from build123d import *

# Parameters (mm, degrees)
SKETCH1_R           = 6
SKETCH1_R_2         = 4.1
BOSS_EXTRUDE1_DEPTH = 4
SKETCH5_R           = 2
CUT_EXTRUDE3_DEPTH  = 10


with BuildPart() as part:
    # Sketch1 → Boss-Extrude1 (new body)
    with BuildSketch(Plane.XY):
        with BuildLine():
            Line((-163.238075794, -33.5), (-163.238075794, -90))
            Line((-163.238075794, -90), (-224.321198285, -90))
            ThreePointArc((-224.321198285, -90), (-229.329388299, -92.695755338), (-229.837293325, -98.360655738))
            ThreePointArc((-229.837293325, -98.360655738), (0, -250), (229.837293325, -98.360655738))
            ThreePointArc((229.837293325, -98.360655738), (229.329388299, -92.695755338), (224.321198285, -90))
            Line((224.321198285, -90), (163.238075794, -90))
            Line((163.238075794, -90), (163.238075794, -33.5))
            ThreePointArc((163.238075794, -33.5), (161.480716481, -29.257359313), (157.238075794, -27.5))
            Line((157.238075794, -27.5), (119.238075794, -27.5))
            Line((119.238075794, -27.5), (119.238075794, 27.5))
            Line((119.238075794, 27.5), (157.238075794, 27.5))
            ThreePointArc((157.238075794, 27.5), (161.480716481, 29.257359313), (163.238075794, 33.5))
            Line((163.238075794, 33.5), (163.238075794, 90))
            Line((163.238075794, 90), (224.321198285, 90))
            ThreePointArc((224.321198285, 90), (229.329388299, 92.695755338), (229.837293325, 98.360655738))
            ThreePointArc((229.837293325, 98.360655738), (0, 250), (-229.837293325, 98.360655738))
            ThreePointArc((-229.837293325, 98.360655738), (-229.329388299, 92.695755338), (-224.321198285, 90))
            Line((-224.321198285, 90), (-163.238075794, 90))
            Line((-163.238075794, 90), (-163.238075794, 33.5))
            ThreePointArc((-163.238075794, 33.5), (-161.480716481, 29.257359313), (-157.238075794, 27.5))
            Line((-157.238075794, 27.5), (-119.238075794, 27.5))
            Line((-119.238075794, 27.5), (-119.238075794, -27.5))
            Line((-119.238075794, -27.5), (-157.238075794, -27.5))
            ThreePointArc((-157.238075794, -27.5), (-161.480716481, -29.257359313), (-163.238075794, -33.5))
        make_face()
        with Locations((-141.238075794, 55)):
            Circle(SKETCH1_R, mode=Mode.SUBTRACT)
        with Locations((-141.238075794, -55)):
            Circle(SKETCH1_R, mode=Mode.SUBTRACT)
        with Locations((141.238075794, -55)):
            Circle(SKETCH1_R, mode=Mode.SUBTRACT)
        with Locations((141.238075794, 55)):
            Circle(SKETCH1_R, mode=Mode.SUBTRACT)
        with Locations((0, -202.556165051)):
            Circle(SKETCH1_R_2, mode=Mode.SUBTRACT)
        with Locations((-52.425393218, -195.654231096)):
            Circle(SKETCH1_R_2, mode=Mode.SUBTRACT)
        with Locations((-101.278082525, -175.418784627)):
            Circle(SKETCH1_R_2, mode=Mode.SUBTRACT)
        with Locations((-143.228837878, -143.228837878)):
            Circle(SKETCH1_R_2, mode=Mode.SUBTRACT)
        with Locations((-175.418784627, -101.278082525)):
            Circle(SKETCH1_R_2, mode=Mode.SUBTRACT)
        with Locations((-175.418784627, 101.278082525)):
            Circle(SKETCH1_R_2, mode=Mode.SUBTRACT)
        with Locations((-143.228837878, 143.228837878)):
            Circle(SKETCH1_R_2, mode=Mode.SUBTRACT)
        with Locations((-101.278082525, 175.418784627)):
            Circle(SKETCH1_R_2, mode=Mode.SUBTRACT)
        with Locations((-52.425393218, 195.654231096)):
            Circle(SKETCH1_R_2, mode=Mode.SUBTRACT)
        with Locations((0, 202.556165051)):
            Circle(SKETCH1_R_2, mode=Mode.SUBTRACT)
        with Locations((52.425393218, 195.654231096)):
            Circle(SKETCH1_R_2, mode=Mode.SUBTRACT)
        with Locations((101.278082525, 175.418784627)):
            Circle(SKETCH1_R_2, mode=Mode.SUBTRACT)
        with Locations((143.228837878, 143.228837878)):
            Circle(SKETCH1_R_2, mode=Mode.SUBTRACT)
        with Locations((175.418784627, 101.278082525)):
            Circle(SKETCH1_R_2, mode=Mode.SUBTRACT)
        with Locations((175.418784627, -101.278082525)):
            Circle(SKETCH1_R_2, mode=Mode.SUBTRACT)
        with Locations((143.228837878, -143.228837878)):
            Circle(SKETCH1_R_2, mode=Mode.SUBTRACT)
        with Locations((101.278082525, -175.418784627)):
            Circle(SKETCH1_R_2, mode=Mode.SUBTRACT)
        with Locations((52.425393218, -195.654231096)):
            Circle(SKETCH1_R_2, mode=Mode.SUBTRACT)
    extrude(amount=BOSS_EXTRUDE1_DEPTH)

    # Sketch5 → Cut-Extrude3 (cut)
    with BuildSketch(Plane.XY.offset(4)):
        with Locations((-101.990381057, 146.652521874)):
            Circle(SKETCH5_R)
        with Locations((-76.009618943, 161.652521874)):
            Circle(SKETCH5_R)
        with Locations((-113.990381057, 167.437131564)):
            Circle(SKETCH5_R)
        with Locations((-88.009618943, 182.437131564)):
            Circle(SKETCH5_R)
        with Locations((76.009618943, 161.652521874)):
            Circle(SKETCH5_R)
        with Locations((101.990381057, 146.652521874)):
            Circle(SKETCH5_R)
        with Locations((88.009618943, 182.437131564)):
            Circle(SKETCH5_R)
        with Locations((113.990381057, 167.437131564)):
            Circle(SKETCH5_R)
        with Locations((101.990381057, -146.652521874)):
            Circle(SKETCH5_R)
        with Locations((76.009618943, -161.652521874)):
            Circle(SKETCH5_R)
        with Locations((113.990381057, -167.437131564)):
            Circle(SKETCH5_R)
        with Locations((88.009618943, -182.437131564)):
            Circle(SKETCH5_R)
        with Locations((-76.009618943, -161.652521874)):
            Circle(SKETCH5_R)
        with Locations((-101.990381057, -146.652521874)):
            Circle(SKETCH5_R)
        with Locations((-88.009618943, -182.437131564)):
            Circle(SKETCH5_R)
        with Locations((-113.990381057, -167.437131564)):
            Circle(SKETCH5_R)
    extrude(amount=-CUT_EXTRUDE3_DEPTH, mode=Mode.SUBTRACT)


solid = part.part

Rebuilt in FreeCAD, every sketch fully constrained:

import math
import FreeCAD as App
import Part
import Sketcher
from FreeCAD import Vector

doc = App.newDocument("Part")
params = doc.addObject("Spreadsheet::Sheet", "Params")
for row, (alias, value) in enumerate([
    ("sketch1_diameter", "12 mm"),
    ("sketch1_radius", "250 mm"),
    ("sketch1_diameter2", "8.2 mm"),
    ("sketch1_width", "38 mm"),
    ("sketch1_height", "55 mm"),
    ("pad1_length", "4 mm"),
    ("sketch2_diameter", "4 mm"),
    ("pocket1_length", "10 mm"),
], start=1):
    params.set(f"A{row}", alias)
    params.set(f"B{row}", "=" + value)
    params.setAlias(f"B{row}", alias)

body = doc.addObject("PartDesign::Body", "Body")

# Sketch on XY plane
sketch1 = body.newObject("Sketcher::SketchObject", "Sketch")
sketch1.AttachmentSupport = (doc.getObject("XY_Plane"), [""])
sketch1.MapMode = "FlatFace"
sketch1.addGeometry([
    Part.LineSegment(Vector(-163.238076, -33.5, 0), Vector(-163.238076, -90, 0)),  # 0
    Part.LineSegment(Vector(-163.238076, -90, 0), Vector(-224.321198, -90, 0)),  # 1
    Part.ArcOfCircle(Part.Circle(Vector(-224.321198, -96, 0), Vector(0, 0, 1), 6), math.radians(90), math.radians(203.16888)),  # 2
    Part.ArcOfCircle(Part.Circle(Vector(0, 0, 0), Vector(0, 0, 1), 250), math.radians(-156.83112), math.radians(-23.16888)),  # 3
    Part.ArcOfCircle(Part.Circle(Vector(224.321198, -96, 0), Vector(0, 0, 1), 6), math.radians(-23.16888), math.radians(90)),  # 4
    Part.LineSegment(Vector(224.321198, -90, 0), Vector(163.238076, -90, 0)),  # 5
    Part.LineSegment(Vector(163.238076, -90, 0), Vector(163.238076, -33.5, 0)),  # 6
    Part.ArcOfCircle(Part.Circle(Vector(157.238076, -33.5, 0), Vector(0, 0, 1), 6), math.radians(0), math.radians(90)),  # 7
    Part.LineSegment(Vector(157.238076, -27.5, 0), Vector(119.238076, -27.5, 0)),  # 8
    Part.LineSegment(Vector(119.238076, -27.5, 0), Vector(119.238076, 27.5, 0)),  # 9
    Part.LineSegment(Vector(119.238076, 27.5, 0), Vector(157.238076, 27.5, 0)),  # 10
    Part.ArcOfCircle(Part.Circle(Vector(157.238076, 33.5, 0), Vector(0, 0, 1), 6), math.radians(-90), math.radians(0)),  # 11
    Part.LineSegment(Vector(163.238076, 33.5, 0), Vector(163.238076, 90, 0)),  # 12
    Part.LineSegment(Vector(163.238076, 90, 0), Vector(224.321198, 90, 0)),  # 13
    Part.ArcOfCircle(Part.Circle(Vector(224.321198, 96, 0), Vector(0, 0, 1), 6), math.radians(-90), math.radians(23.16888)),  # 14
    Part.ArcOfCircle(Part.Circle(Vector(0, 0, 0), Vector(0, 0, 1), 250), math.radians(23.16888), math.radians(156.83112)),  # 15
    Part.ArcOfCircle(Part.Circle(Vector(-224.321198, 96, 0), Vector(0, 0, 1), 6), math.radians(156.83112), math.radians(270)),  # 16
    Part.LineSegment(Vector(-224.321198, 90, 0), Vector(-163.238076, 90, 0)),  # 17
    Part.LineSegment(Vector(-163.238076, 90, 0), Vector(-163.238076, 33.5, 0)),  # 18
    Part.ArcOfCircle(Part.Circle(Vector(-157.238076, 33.5, 0), Vector(0, 0, 1), 6), math.radians(180), math.radians(270)),  # 19
    Part.LineSegment(Vector(-157.238076, 27.5, 0), Vector(-119.238076, 27.5, 0)),  # 20
    Part.LineSegment(Vector(-119.238076, 27.5, 0), Vector(-119.238076, -27.5, 0)),  # 21
    Part.LineSegment(Vector(-119.238076, -27.5, 0), Vector(-157.238076, -27.5, 0)),  # 22
    Part.ArcOfCircle(Part.Circle(Vector(-157.238076, -33.5, 0), Vector(0, 0, 1), 6), math.radians(90), math.radians(180)),  # 23
    Part.Circle(Vector(-101.278083, -175.418785, 0), Vector(0, 0, 1), 4.1),  # 24
    Part.Circle(Vector(-143.228838, -143.228838, 0), Vector(0, 0, 1), 4.1),  # 25
    Part.Circle(Vector(-52.425393, -195.654231, 0), Vector(0, 0, 1), 4.1),  # 26
    Part.Circle(Vector(-175.418785, -101.278083, 0), Vector(0, 0, 1), 4.1),  # 27
    Part.Circle(Vector(-141.238076, -55, 0), Vector(0, 0, 1), 6),  # 28
    Part.Circle(Vector(0, -202.556165, 0), Vector(0, 0, 1), 4.1),  # 29
    Part.Circle(Vector(52.425393, -195.654231, 0), Vector(0, 0, 1), 4.1),  # 30
    Part.Circle(Vector(101.278083, -175.418785, 0), Vector(0, 0, 1), 4.1),  # 31
    Part.Circle(Vector(143.228838, -143.228838, 0), Vector(0, 0, 1), 4.1),  # 32
    Part.Circle(Vector(175.418785, -101.278083, 0), Vector(0, 0, 1), 4.1),  # 33
    Part.Circle(Vector(141.238076, -55, 0), Vector(0, 0, 1), 6),  # 34
    Part.Circle(Vector(-141.238076, 55, 0), Vector(0, 0, 1), 6),  # 35
    Part.Circle(Vector(-175.418785, 101.278083, 0), Vector(0, 0, 1), 4.1),  # 36
    Part.Circle(Vector(-143.228838, 143.228838, 0), Vector(0, 0, 1), 4.1),  # 37
    Part.Circle(Vector(-101.278083, 175.418785, 0), Vector(0, 0, 1), 4.1),  # 38
    Part.Circle(Vector(-52.425393, 195.654231, 0), Vector(0, 0, 1), 4.1),  # 39
    Part.Circle(Vector(141.238076, 55, 0), Vector(0, 0, 1), 6),  # 40
    Part.Circle(Vector(175.418785, 101.278083, 0), Vector(0, 0, 1), 4.1),  # 41
    Part.Circle(Vector(0, 202.556165, 0), Vector(0, 0, 1), 4.1),  # 42
    Part.Circle(Vector(52.425393, 195.654231, 0), Vector(0, 0, 1), 4.1),  # 43
    Part.Circle(Vector(143.228838, 143.228838, 0), Vector(0, 0, 1), 4.1),  # 44
    Part.Circle(Vector(101.278083, 175.418785, 0), Vector(0, 0, 1), 4.1),  # 45
], False)
sketch1.addConstraint([
    Sketcher.Constraint("Coincident", 0, 2, 1, 1),
    Sketcher.Constraint("Tangent", 1, 2, 2, 1),
    Sketcher.Constraint("Tangent", 2, 2, 3, 1),
    Sketcher.Constraint("Tangent", 3, 2, 4, 1),
    Sketcher.Constraint("Tangent", 4, 2, 5, 1),
    Sketcher.Constraint("Coincident", 5, 2, 6, 1),
    Sketcher.Constraint("Tangent", 6, 2, 7, 1),
    Sketcher.Constraint("Tangent", 7, 2, 8, 1),
    Sketcher.Constraint("Coincident", 8, 2, 9, 1),
    Sketcher.Constraint("Coincident", 9, 2, 10, 1),
    Sketcher.Constraint("Tangent", 10, 2, 11, 1),
    Sketcher.Constraint("Tangent", 11, 2, 12, 1),
    Sketcher.Constraint("Coincident", 12, 2, 13, 1),
    Sketcher.Constraint("Tangent", 13, 2, 14, 1),
    Sketcher.Constraint("Tangent", 14, 2, 15, 1),
    Sketcher.Constraint("Tangent", 15, 2, 16, 1),
    Sketcher.Constraint("Tangent", 16, 2, 17, 1),
    Sketcher.Constraint("Coincident", 17, 2, 18, 1),
    Sketcher.Constraint("Tangent", 18, 2, 19, 1),
    Sketcher.Constraint("Tangent", 19, 2, 20, 1),
    Sketcher.Constraint("Coincident", 20, 2, 21, 1),
    Sketcher.Constraint("Coincident", 21, 2, 22, 1),
    Sketcher.Constraint("Tangent", 22, 2, 23, 1),
    Sketcher.Constraint("Tangent", 23, 2, 0, 1),
    Sketcher.Constraint("Vertical", 0),
    Sketcher.Constraint("Horizontal", 1),
    Sketcher.Constraint("Horizontal", 5),
    Sketcher.Constraint("Vertical", 6),
    Sketcher.Constraint("Horizontal", 8),
    Sketcher.Constraint("Vertical", 9),
    Sketcher.Constraint("Horizontal", 10),
    Sketcher.Constraint("Vertical", 12),
    Sketcher.Constraint("Horizontal", 13),
    Sketcher.Constraint("Horizontal", 17),
    Sketcher.Constraint("Vertical", 18),
    Sketcher.Constraint("Horizontal", 20),
    Sketcher.Constraint("Vertical", 21),
    Sketcher.Constraint("Horizontal", 22),
    Sketcher.Constraint("Coincident", 3, 3, -1, 1),
    Sketcher.Constraint("Coincident", 15, 3, -1, 1),
    Sketcher.Constraint("Equal", 2, 4),
    Sketcher.Constraint("Equal", 4, 7),
    Sketcher.Constraint("Equal", 7, 11),
    Sketcher.Constraint("Equal", 11, 14),
    Sketcher.Constraint("Equal", 3, 15),
    Sketcher.Constraint("Equal", 14, 16),
    Sketcher.Constraint("Equal", 16, 19),
    Sketcher.Constraint("Equal", 19, 23),
    Sketcher.Constraint("Equal", 24, 25),
    Sketcher.Constraint("Equal", 25, 26),
    Sketcher.Constraint("Equal", 26, 27),
    Sketcher.Constraint("Equal", 23, 28),
    Sketcher.Constraint("Equal", 27, 29),
    Sketcher.Constraint("Equal", 29, 30),
    Sketcher.Constraint("Equal", 30, 31),
    Sketcher.Constraint("Equal", 31, 32),
    Sketcher.Constraint("Equal", 32, 33),
    Sketcher.Constraint("Equal", 28, 34),
    Sketcher.Constraint("Equal", 34, 35),
    Sketcher.Constraint("Equal", 33, 36),
    Sketcher.Constraint("Equal", 36, 37),
    Sketcher.Constraint("Equal", 37, 38),
    Sketcher.Constraint("Equal", 38, 39),
    Sketcher.Constraint("Equal", 35, 40),
    Sketcher.Constraint("Equal", 39, 41),
    Sketcher.Constraint("Equal", 41, 42),
    Sketcher.Constraint("Equal", 42, 43),
    Sketcher.Constraint("Equal", 43, 44),
    Sketcher.Constraint("Equal", 44, 45),
    Sketcher.Constraint("Symmetric", 7, 3, 19, 3, -1, 1),
    Sketcher.Constraint("Symmetric", 11, 3, 23, 3, -1, 1),
    Sketcher.Constraint("Symmetric", 34, 3, 35, 3, -1, 1),
    Sketcher.Constraint("Symmetric", 33, 3, 36, 3, -1, 1),
    Sketcher.Constraint("Symmetric", 32, 3, 37, 3, -1, 1),
    Sketcher.Constraint("Symmetric", 31, 3, 38, 3, -1, 1),
    Sketcher.Constraint("Symmetric", 30, 3, 39, 3, -1, 1),
    Sketcher.Constraint("Symmetric", 28, 3, 40, 3, -1, 1),
    Sketcher.Constraint("Symmetric", 27, 3, 41, 3, -1, 1),
    Sketcher.Constraint("Symmetric", 29, 3, 42, 3, -1, 1),
    Sketcher.Constraint("Symmetric", 26, 3, 43, 3, -1, 1),
    Sketcher.Constraint("Symmetric", 25, 3, 44, 3, -1, 1),
    Sketcher.Constraint("Symmetric", 24, 3, 45, 3, -1, 1),
    Sketcher.Constraint("Symmetric", 11, 3, 19, 3, -2),
    Sketcher.Constraint("Symmetric", 26, 3, 30, 3, -2),
    Sketcher.Constraint("Symmetric", 24, 3, 31, 3, -2),
    Sketcher.Constraint("Symmetric", 25, 3, 32, 3, -2),
    Sketcher.Constraint("Symmetric", 27, 3, 33, 3, -2),
    Sketcher.Constraint("Symmetric", 28, 3, 34, 3, -2),
    Sketcher.Constraint("PointOnObject", 29, 3, -2),
    Sketcher.Constraint("Horizontal", 2, 3, 4, 3),
    Sketcher.Constraint("Horizontal", 14, 3, 16, 3),
    Sketcher.Constraint("Vertical", 4, 3, 14, 3),
    Sketcher.Constraint("Equal", 10, 20),
    Sketcher.Constraint("Diameter", 28, 12.0),
    Sketcher.Constraint("Radius", 3, 250.0),
    Sketcher.Constraint("Diameter", 24, 8.2),
    Sketcher.Constraint("DistanceX", 8, 2, 8, 1, 38.0),
    Sketcher.Constraint("DistanceY", 9, 1, 9, 2, 55.0),
    Sketcher.Constraint("DistanceY", 0, 2, 0, 1, 56.5),
    Sketcher.Constraint("DistanceY", 28, 3, -1, 1, 55.0),
    Sketcher.Constraint("DistanceX", 23, 3, 28, 3, 16.0),
    Sketcher.Constraint("DistanceX", 1, 2, 1, 1, 61.083122),
    Sketcher.Constraint("DistanceY", 26, 3, -1, 1, 195.654231),
    Sketcher.Constraint("DistanceX", 2, 3, 25, 3, 81.09236),
    Sketcher.Constraint("DistanceX", 24, 3, 26, 3, 48.852689),
    Sketcher.Constraint("DistanceX", 27, 3, 23, 3, 18.180709),
    Sketcher.Constraint("DistanceY", 29, 3, 24, 3, 27.13738),
    Sketcher.Constraint("DistanceX", 36, 3, 39, 3, 122.993391),
    Sketcher.Constraint("DistanceY", 36, 3, 39, 3, 94.376149),
    Sketcher.Constraint("DistanceY", 24, 3, -1, 1, 175.418785),
    Sketcher.Constraint("DistanceY", 25, 3, -1, 1, 143.228838),
])
sketch1.setExpression("Constraints[93]", "Params.sketch1_diameter")
sketch1.setExpression("Constraints[94]", "Params.sketch1_radius")
sketch1.setExpression("Constraints[95]", "Params.sketch1_diameter2")
sketch1.setExpression("Constraints[96]", "Params.sketch1_width")
sketch1.setExpression("Constraints[97]", "Params.sketch1_height")
pad1 = body.newObject("PartDesign::Pad", "Pad")
pad1.Profile = sketch1
pad1.setExpression("Length", "Params.pad1_length")

# Sketch on XY plane
sketch2 = body.newObject("Sketcher::SketchObject", "Sketch001")
sketch2.AttachmentSupport = (doc.getObject("XY_Plane"), [""])
sketch2.MapMode = "FlatFace"
sketch2.AttachmentOffset = App.Placement(Vector(0, 0, 4), App.Rotation())
sketch2.addGeometry([
    Part.Circle(Vector(-101.990381, 146.652522, 0), Vector(0, 0, 1), 2),  # 0
    Part.Circle(Vector(-76.009619, 161.652522, 0), Vector(0, 0, 1), 2),  # 1
    Part.Circle(Vector(-113.990381, 167.437132, 0), Vector(0, 0, 1), 2),  # 2
    Part.Circle(Vector(-88.009619, 182.437132, 0), Vector(0, 0, 1), 2),  # 3
    Part.Circle(Vector(76.009619, 161.652522, 0), Vector(0, 0, 1), 2),  # 4
    Part.Circle(Vector(101.990381, 146.652522, 0), Vector(0, 0, 1), 2),  # 5
    Part.Circle(Vector(88.009619, 182.437132, 0), Vector(0, 0, 1), 2),  # 6
    Part.Circle(Vector(113.990381, 167.437132, 0), Vector(0, 0, 1), 2),  # 7
    Part.Circle(Vector(101.990381, -146.652522, 0), Vector(0, 0, 1), 2),  # 8
    Part.Circle(Vector(76.009619, -161.652522, 0), Vector(0, 0, 1), 2),  # 9
    Part.Circle(Vector(113.990381, -167.437132, 0), Vector(0, 0, 1), 2),  # 10
    Part.Circle(Vector(88.009619, -182.437132, 0), Vector(0, 0, 1), 2),  # 11
    Part.Circle(Vector(-76.009619, -161.652522, 0), Vector(0, 0, 1), 2),  # 12
    Part.Circle(Vector(-101.990381, -146.652522, 0), Vector(0, 0, 1), 2),  # 13
    Part.Circle(Vector(-88.009619, -182.437132, 0), Vector(0, 0, 1), 2),  # 14
    Part.Circle(Vector(-113.990381, -167.437132, 0), Vector(0, 0, 1), 2),  # 15
], False)
sketch2.addConstraint([
    Sketcher.Constraint("Equal", 0, 1),
    Sketcher.Constraint("Equal", 1, 2),
    Sketcher.Constraint("Equal", 2, 3),
    Sketcher.Constraint("Equal", 3, 4),
    Sketcher.Constraint("Equal", 4, 5),
    Sketcher.Constraint("Equal", 5, 6),
    Sketcher.Constraint("Equal", 6, 7),
    Sketcher.Constraint("Equal", 7, 8),
    Sketcher.Constraint("Equal", 8, 9),
    Sketcher.Constraint("Equal", 9, 10),
    Sketcher.Constraint("Equal", 10, 11),
    Sketcher.Constraint("Equal", 11, 12),
    Sketcher.Constraint("Equal", 12, 13),
    Sketcher.Constraint("Equal", 13, 14),
    Sketcher.Constraint("Equal", 14, 15),
    Sketcher.Constraint("Symmetric", 0, 3, 8, 3, -1, 1),
    Sketcher.Constraint("Symmetric", 1, 3, 9, 3, -1, 1),
    Sketcher.Constraint("Symmetric", 2, 3, 10, 3, -1, 1),
    Sketcher.Constraint("Symmetric", 3, 3, 11, 3, -1, 1),
    Sketcher.Constraint("Symmetric", 4, 3, 12, 3, -1, 1),
    Sketcher.Constraint("Symmetric", 5, 3, 13, 3, -1, 1),
    Sketcher.Constraint("Symmetric", 6, 3, 14, 3, -1, 1),
    Sketcher.Constraint("Symmetric", 7, 3, 15, 3, -1, 1),
    Sketcher.Constraint("Symmetric", 1, 3, 4, 3, -2),
    Sketcher.Constraint("Symmetric", 0, 3, 5, 3, -2),
    Sketcher.Constraint("Symmetric", 3, 3, 6, 3, -2),
    Sketcher.Constraint("Symmetric", 2, 3, 7, 3, -2),
    Sketcher.Constraint("Diameter", 0, 4.0),
    Sketcher.Constraint("DistanceY", 0, 3, 1, 3, 15.0),
    Sketcher.Constraint("DistanceX", 2, 3, 0, 3, 12.0),
    Sketcher.Constraint("DistanceX", 3, 3, 1, 3, 12.0),
    Sketcher.Constraint("DistanceY", 2, 3, 3, 3, 15.0),
    Sketcher.Constraint("DistanceX", 0, 3, 4, 3, 178.0),
    Sketcher.Constraint("DistanceX", 0, 3, -1, 1, 101.990381),
    Sketcher.Constraint("DistanceY", -1, 1, 0, 3, 146.652522),
    Sketcher.Constraint("DistanceY", -1, 1, 2, 3, 167.437132),
])
sketch2.setExpression("Constraints[27]", "Params.sketch2_diameter")
pocket1 = body.newObject("PartDesign::Pocket", "Pocket")
pocket1.Profile = sketch2
pocket1.setExpression("Length", "Params.pocket1_length")

doc.recompute()
